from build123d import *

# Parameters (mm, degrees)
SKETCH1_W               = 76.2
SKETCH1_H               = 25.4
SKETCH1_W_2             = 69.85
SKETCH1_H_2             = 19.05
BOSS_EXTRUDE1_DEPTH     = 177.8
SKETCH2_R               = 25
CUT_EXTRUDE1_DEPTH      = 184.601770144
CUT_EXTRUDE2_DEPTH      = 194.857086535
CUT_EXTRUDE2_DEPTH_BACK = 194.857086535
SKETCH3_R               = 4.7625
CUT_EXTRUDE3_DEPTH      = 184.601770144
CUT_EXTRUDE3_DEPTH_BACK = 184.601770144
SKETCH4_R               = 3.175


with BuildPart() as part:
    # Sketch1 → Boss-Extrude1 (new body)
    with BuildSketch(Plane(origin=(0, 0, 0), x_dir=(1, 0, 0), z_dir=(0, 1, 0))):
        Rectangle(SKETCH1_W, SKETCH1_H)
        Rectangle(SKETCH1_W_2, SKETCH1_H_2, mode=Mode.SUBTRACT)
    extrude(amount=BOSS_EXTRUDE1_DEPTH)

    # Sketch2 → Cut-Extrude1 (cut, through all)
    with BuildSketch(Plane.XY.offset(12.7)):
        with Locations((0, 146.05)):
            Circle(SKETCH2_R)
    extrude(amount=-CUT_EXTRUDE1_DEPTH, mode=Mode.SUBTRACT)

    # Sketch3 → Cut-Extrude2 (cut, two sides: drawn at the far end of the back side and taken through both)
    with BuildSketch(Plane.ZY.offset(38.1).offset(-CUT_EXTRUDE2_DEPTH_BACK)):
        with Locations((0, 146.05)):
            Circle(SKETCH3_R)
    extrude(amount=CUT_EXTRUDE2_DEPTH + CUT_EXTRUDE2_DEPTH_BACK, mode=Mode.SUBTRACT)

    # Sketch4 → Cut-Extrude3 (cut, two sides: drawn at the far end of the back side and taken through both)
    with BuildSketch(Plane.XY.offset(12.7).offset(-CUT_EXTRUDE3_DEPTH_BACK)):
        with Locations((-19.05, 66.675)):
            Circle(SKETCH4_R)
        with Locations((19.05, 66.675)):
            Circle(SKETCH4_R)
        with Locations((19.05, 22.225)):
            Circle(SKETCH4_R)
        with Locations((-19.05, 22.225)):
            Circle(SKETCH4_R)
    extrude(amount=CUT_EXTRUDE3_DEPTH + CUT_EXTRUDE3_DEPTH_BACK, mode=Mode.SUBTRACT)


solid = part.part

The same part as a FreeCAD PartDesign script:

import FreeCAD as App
import Part
import Sketcher

V = App.Vector
Q = App.Units.Quantity


def add_polygon(sketch, points):
    """Adds a closed chain of lines whose ends are joined by coincident constraints."""
    first, n = sketch.GeometryCount, len(points)
    for a, b in zip(points, points[1:] + points[:1]):
        sketch.addGeometry(Part.LineSegment(App.Vector(*a, 0), App.Vector(*b, 0)), False)
    for i in range(n):
        sketch.addConstraint(Sketcher.Constraint("Coincident", first + i, 2, first + (i + 1) % n, 1))

doc = App.newDocument("Part")
body = doc.addObject("PartDesign::Body", "Body")

sketch1 = body.newObject("Sketcher::SketchObject", "Sketch")
sketch1.AttachmentSupport = (doc.getObject("XZ_Plane"), [""])
sketch1.MapMode = "FlatFace"
add_polygon(sketch1, [(-38, -13), (-38, 13), (38, 13), (38, -13)])
add_polygon(sketch1, [(35, 10), (-35, 10), (-35, -10), (35, -10)])
sketch1.addConstraint(Sketcher.Constraint("Vertical", 0))
sketch1.addConstraint(Sketcher.Constraint("Horizontal", 1))
sketch1.addConstraint(Sketcher.Constraint("Vertical", 2))
sketch1.addConstraint(Sketcher.Constraint("Horizontal", 3))
sketch1.addConstraint(Sketcher.Constraint("Horizontal", 4))
sketch1.addConstraint(Sketcher.Constraint("Vertical", 5))
sketch1.addConstraint(Sketcher.Constraint("Horizontal", 6))
sketch1.addConstraint(Sketcher.Constraint("Vertical", 7))
sketch1.addConstraint(Sketcher.Constraint("Symmetric", 0, 2, 2, 2, -1, 1))
sketch1.addConstraint(Sketcher.Constraint("Symmetric", 4, 2, 6, 2, -1, 1))
sketch1.addConstraint(Sketcher.Constraint("DistanceX", 1, 1, 1, 2, Q("3 in")))
sketch1.addConstraint(Sketcher.Constraint("DistanceY", 0, 1, 0, 2, Q("1 in")))
sketch1.addConstraint(Sketcher.Constraint("DistanceX", 4, 2, 4, 1, Q("2.75 in")))
sketch1.addConstraint(Sketcher.Constraint("DistanceY", 5, 2, 5, 1, Q("0.75 in")))
pad1 = body.newObject("PartDesign::Pad", "Pad")
pad1.Profile = sketch1
pad1.Length = Q("7 in")
pad1.Reversed = True

sketch2 = body.newObject("Sketcher::SketchObject", "Sketch001")
sketch2.AttachmentSupport = (doc.getObject("XY_Plane"), [""])
sketch2.MapMode = "FlatFace"
sketch2.AttachmentOffset = App.Placement(V(0, 0, 0.5 * 25.4), App.Rotation())
sketch2.addGeometry(Part.Circle(V(0, 146, 0), V(0, 0, 1), 25), False)
sketch2.addConstraint(Sketcher.Constraint("PointOnObject", 0, 3, -2))
sketch2.addConstraint(Sketcher.Constraint("Diameter", 0, Q("50 mm")))
sketch2.addConstraint(Sketcher.Constraint("DistanceY", -1, 1, 0, 3, Q("5.75 in")))
pocket1 = body.newObject("PartDesign::Pocket", "Pocket")
pocket1.Profile = sketch2
pocket1.Type = "ThroughAll"

sketch3 = body.newObject("Sketcher::SketchObject", "Sketch002")
sketch3.AttachmentSupport = (doc.getObject("YZ_Plane"), [""])
sketch3.MapMode = "FlatFace"
sketch3.AttachmentOffset = App.Placement(V(0, 0, -1.5 * 25.4), App.Rotation())
sketch3.addGeometry(Part.Circle(V(146.1, 0, 0), V(0, 0, 1), 4.8), False)
sketch3.addConstraint(Sketcher.Constraint("PointOnObject", 0, 3, -1))
sketch3.addConstraint(Sketcher.Constraint("Diameter", 0, Q("0.375 in")))
sketch3.addConstraint(Sketcher.Constraint("DistanceX", -1, 1, 0, 3, Q("5.75 in")))
pocket2 = body.newObject("PartDesign::Pocket", "Pocket001")
pocket2.Profile = sketch3
pocket2.Type = "ThroughAll"
pocket2.Midplane = True

sketch4 = body.newObject("Sketcher::SketchObject", "Sketch003")
sketch4.AttachmentSupport = (doc.getObject("XY_Plane"), [""])
sketch4.MapMode = "FlatFace"
sketch4.AttachmentOffset = App.Placement(V(0, 0, 0.5 * 25.4), App.Rotation())
sketch4.addGeometry(Part.Circle(V(-19.1, 66.7, 0), V(0, 0, 1), 3.2), False)
sketch4.addGeometry(Part.Circle(V(19.1, 66.7, 0), V(0, 0, 1), 3.2), False)
sketch4.addGeometry(Part.Circle(V(19.1, 22.2, 0), V(0, 0, 1), 3.2), False)
sketch4.addGeometry(Part.Circle(V(-19.1, 22.2, 0), V(0, 0, 1), 3.2), False)
sketch4.addConstraint(Sketcher.Constraint("Equal", 0, 1))
sketch4.addConstraint(Sketcher.Constraint("Equal", 1, 2))
sketch4.addConstraint(Sketcher.Constraint("Equal", 2, 3))
sketch4.addConstraint(Sketcher.Constraint("Symmetric", 0, 3, 1, 3, -2))
sketch4.addConstraint(Sketcher.Constraint("Symmetric", 2, 3, 3, 3, -2))
sketch4.addConstraint(Sketcher.Constraint("Vertical", 1, 3, 2, 3))
sketch4.addConstraint(Sketcher.Constraint("Diameter", 0, Q("0.25 in")))
sketch4.addConstraint(Sketcher.Constraint("DistanceX", 0, 3, 1, 3, Q("1.5 in")))
sketch4.addConstraint(Sketcher.Constraint("DistanceY", 2, 3, 1, 3, Q("1.75 in")))
sketch4.addConstraint(Sketcher.Constraint("DistanceY", -1, 1, 0, 3, Q("2.625 in")))
pocket3 = body.newObject("PartDesign::Pocket", "Pocket002")
pocket3.Profile = sketch4
pocket3.Type = "ThroughAll"
pocket3.Midplane = True

doc.recompute()
